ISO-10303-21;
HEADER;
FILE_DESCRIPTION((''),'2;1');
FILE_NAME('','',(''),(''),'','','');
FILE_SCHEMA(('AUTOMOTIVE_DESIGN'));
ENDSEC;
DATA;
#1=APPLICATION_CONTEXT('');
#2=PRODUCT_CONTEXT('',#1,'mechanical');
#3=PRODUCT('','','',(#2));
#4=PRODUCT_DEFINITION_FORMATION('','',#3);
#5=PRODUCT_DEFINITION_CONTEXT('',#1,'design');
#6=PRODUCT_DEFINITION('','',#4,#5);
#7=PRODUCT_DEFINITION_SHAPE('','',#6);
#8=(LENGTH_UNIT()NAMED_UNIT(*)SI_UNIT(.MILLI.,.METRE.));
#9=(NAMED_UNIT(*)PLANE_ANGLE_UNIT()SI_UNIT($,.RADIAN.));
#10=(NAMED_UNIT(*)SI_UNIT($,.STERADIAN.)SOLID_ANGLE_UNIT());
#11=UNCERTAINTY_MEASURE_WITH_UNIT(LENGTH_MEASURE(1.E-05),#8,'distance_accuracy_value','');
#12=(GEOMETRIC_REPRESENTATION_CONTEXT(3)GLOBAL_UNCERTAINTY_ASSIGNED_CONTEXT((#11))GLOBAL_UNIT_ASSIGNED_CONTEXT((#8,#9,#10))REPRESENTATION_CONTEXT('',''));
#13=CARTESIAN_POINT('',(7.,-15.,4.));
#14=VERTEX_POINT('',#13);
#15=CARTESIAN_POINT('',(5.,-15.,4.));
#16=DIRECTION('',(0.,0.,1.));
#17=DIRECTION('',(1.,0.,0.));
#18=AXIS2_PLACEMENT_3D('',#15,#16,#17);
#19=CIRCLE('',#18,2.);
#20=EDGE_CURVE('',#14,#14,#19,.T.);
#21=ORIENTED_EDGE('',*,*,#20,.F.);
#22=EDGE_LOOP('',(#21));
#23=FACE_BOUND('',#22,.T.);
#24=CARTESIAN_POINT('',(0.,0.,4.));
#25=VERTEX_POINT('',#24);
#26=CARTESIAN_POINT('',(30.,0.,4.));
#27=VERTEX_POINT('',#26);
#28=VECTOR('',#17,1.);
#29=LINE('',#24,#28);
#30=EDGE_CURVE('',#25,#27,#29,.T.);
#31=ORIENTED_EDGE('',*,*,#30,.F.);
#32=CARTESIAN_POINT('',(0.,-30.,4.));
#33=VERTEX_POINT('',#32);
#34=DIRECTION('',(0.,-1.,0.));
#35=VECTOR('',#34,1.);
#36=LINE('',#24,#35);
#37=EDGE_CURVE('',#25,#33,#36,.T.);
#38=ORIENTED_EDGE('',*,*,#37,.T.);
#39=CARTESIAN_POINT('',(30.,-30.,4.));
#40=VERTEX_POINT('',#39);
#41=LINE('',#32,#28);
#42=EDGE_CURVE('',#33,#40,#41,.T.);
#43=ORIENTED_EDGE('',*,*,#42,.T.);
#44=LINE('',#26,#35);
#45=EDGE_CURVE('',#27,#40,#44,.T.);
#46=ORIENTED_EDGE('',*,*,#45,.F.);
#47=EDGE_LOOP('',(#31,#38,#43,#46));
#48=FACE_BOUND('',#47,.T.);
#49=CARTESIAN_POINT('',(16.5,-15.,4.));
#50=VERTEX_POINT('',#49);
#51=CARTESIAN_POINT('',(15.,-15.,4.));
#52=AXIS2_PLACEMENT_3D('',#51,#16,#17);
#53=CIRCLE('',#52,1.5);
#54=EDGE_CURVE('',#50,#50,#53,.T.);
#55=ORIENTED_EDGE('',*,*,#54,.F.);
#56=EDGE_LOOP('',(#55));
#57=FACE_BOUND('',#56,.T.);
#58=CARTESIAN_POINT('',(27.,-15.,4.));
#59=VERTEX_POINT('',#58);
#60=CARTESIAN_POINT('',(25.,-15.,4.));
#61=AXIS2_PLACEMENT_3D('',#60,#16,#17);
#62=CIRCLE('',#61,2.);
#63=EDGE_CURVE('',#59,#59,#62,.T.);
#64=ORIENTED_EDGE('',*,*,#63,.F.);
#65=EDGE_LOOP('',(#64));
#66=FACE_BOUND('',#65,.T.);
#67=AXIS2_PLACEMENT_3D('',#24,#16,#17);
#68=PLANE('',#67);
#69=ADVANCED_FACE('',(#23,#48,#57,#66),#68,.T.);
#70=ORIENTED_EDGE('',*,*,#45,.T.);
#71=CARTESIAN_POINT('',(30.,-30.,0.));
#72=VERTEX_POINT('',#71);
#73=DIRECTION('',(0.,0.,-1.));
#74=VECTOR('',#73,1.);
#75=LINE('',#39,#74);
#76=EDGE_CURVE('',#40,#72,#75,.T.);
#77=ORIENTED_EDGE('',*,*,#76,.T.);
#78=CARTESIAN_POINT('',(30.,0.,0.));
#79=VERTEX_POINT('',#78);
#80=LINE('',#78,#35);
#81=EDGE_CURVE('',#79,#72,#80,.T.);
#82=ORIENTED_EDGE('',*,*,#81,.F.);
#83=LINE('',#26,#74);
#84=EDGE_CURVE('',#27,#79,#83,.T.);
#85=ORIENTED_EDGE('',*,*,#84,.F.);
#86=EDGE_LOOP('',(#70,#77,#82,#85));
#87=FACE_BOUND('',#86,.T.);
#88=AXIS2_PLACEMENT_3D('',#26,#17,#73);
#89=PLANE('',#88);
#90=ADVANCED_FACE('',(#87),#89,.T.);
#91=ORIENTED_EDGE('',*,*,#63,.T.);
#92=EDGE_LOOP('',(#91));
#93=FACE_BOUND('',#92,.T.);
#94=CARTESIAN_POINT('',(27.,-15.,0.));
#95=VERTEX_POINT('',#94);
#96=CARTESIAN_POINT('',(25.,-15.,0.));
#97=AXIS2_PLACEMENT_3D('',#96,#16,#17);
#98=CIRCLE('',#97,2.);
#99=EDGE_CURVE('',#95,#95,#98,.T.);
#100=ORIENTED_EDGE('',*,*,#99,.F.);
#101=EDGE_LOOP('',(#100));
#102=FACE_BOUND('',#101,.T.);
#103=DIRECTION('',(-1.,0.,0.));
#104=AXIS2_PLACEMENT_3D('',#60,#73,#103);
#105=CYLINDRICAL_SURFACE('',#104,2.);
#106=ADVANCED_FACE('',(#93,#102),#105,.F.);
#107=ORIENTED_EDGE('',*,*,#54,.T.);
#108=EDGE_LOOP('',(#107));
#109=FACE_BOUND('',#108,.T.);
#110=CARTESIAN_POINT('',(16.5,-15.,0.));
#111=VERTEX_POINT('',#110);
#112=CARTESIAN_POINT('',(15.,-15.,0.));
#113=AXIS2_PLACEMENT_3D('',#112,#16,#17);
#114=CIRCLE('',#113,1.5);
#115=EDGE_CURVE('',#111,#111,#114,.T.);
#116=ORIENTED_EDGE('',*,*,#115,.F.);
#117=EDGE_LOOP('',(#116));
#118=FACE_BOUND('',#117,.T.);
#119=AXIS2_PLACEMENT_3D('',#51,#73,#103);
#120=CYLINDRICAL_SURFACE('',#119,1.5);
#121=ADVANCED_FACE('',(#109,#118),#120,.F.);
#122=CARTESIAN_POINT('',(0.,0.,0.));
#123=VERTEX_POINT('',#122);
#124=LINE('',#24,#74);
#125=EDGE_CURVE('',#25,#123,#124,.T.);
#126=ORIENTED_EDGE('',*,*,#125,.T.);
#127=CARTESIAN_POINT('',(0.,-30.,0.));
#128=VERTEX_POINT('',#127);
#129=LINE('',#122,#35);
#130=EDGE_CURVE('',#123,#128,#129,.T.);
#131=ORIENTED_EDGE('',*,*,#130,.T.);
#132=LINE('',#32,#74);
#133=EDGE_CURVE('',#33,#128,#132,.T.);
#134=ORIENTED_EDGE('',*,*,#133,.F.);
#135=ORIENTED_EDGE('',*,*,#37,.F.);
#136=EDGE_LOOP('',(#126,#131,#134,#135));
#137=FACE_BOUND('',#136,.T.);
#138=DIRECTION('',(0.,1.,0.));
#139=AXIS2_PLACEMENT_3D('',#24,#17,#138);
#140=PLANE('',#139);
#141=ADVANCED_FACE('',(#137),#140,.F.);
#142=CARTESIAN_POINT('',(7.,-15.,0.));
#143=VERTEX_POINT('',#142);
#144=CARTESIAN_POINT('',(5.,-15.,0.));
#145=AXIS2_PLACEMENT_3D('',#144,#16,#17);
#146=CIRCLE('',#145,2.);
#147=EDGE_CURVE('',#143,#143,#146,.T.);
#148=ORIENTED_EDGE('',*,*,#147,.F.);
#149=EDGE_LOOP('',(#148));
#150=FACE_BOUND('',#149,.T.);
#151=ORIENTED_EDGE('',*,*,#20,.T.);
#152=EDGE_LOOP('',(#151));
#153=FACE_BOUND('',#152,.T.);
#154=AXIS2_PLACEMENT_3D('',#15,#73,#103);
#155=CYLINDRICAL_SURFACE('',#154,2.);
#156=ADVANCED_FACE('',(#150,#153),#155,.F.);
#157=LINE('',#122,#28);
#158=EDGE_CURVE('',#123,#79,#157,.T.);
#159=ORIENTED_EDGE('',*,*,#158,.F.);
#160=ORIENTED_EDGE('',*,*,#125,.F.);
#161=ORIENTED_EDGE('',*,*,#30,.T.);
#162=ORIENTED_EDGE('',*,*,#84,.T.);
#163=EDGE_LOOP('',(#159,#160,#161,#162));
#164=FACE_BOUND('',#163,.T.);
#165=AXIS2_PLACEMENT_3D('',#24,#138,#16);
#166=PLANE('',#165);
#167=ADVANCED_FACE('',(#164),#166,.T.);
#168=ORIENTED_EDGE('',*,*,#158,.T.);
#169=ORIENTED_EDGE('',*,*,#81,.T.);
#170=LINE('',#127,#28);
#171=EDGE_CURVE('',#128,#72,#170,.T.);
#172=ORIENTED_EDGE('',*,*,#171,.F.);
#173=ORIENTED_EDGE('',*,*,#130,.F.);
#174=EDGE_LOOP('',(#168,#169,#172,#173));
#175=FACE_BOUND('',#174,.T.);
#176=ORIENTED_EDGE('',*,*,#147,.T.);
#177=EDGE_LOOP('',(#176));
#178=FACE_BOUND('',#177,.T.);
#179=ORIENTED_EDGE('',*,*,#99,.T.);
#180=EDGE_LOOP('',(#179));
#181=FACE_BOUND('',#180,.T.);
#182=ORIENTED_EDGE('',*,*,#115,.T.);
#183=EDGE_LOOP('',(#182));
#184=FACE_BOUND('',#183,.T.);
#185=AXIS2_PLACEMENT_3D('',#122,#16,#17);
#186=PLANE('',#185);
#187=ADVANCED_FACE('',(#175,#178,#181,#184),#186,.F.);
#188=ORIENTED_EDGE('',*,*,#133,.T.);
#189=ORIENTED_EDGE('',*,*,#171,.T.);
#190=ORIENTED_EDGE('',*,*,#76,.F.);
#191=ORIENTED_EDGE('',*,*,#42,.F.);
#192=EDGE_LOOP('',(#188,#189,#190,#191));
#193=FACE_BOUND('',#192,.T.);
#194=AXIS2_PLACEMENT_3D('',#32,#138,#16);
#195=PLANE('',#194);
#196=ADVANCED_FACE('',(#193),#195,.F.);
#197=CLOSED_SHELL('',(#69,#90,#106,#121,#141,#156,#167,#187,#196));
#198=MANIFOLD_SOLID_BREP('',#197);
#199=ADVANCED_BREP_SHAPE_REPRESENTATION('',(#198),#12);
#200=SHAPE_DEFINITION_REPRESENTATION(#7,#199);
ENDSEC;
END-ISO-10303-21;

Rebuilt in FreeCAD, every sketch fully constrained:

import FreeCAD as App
import Part
import Sketcher
from FreeCAD import Vector
Q = App.Units.Quantity

doc = App.newDocument("Part")
body = doc.addObject("PartDesign::Body", "Body")

# Sketch on XY plane
sketch1 = doc.addObject("Sketcher::SketchObject", "Sketch")
body.addObject(sketch1)
sketch1.AttachmentSupport = (doc.XY_Plane, [""])
sketch1.MapMode = "FlatFace"
sketch1.addGeometry([
    Part.LineSegment(Vector(30, 0, 0), Vector(0, 0, 0)),  # 0
    Part.LineSegment(Vector(0, 0, 0), Vector(0, -30, 0)),  # 1
    Part.LineSegment(Vector(0, -30, 0), Vector(30, -30, 0)),  # 2
    Part.LineSegment(Vector(30, -30, 0), Vector(30, 0, 0)),  # 3
    Part.Circle(Vector(5, -15, 0), Vector(0, 0, 1), 2),  # 4
    Part.Circle(Vector(25, -15, 0), Vector(0, 0, 1), 2),  # 5
    Part.Circle(Vector(15, -15, 0), Vector(0, 0, 1), 1.5),  # 6
], False)
sketch1.addConstraint([
    Sketcher.Constraint("Coincident", 0, 2, 1, 1),
    Sketcher.Constraint("Coincident", 1, 2, 2, 1),
    Sketcher.Constraint("Coincident", 2, 2, 3, 1),
    Sketcher.Constraint("Coincident", 3, 2, 0, 1),
    Sketcher.Constraint("Horizontal", 0),
    Sketcher.Constraint("Vertical", 1),
    Sketcher.Constraint("Horizontal", 2),
    Sketcher.Constraint("Vertical", 3),
    Sketcher.Constraint("Coincident", 0, 2, -1, 1),
    Sketcher.Constraint("Equal", 4, 5),
    Sketcher.Constraint("Horizontal", 4, 3, 5, 3),
    Sketcher.Constraint("Horizontal", 5, 3, 6, 3),
    Sketcher.Constraint("Equal", 2, 1),
    Sketcher.Constraint("Diameter", 4, Q("4 mm")),
    Sketcher.Constraint("Diameter", 6, Q("3 mm")),
    Sketcher.Constraint("DistanceX", 0, 2, 0, 1, Q("30 mm")),
    Sketcher.Constraint("DistanceX", -1, 1, 4, 3, Q("5 mm")),
    Sketcher.Constraint("DistanceY", 4, 3, -1, 1, Q("15 mm")),
    Sketcher.Constraint("DistanceX", -1, 1, 5, 3, Q("25 mm")),
    Sketcher.Constraint("DistanceX", -1, 1, 6, 3, Q("15 mm")),
])
pad1 = doc.addObject("PartDesign::Pad", "Pad")
body.addObject(pad1)
pad1.Profile = sketch1
pad1.Length = 4

doc.recompute()
